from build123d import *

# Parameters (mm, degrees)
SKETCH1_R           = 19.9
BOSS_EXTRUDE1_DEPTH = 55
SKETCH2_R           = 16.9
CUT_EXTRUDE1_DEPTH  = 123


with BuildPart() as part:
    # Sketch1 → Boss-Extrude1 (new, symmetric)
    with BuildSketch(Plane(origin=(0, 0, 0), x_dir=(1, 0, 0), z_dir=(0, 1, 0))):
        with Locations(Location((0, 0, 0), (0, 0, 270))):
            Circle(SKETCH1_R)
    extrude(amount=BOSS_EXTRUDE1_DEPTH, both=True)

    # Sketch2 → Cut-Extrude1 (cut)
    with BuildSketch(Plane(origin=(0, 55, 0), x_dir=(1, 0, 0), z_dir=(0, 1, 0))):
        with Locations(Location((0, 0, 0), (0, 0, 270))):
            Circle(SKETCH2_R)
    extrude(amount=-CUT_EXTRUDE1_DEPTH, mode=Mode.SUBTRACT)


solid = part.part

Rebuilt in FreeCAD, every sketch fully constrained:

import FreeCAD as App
import Part
import Sketcher
Q = App.Units.Quantity

doc = App.newDocument("Part")
body = doc.addObject("PartDesign::Body", "Body")

# Sketch on XZ plane
sketch1 = doc.addObject("Sketcher::SketchObject", "Sketch")
body.addObject(sketch1)
sketch1.AttachmentSupport = (doc.XZ_Plane, [""])
sketch1.MapMode = "FlatFace"
sketch1.addGeometry(Part.Circle(App.Vector(0, 0, 0), App.Vector(0, 0, 1), 20), False)
sketch1.addConstraint([
    Sketcher.Constraint("Coincident", 0, 3, -1, 1),
    Sketcher.Constraint("Diameter", 0, Q("39.8 mm")),
])
pad1 = doc.addObject("PartDesign::Pad", "Pad")
body.addObject(pad1)
pad1.Profile = sketch1
pad1.Length = 110
pad1.Midplane = True

# Sketch on XZ plane
sketch2 = doc.addObject("Sketcher::SketchObject", "Sketch001")
body.addObject(sketch2)
sketch2.AttachmentSupport = (doc.XZ_Plane, [""])
sketch2.MapMode = "FlatFace"
sketch2.AttachmentOffset = App.Placement(App.Vector(0, 0, -55), App.Rotation())
sketch2.addGeometry(Part.Circle(App.Vector(0, 0, 0), App.Vector(0, 0, 1), 17), False)
sketch2.addConstraint([
    Sketcher.Constraint("Coincident", 0, 3, -1, 1),
    Sketcher.Constraint("Diameter", 0, Q("33.8 mm")),
])
pocket1 = doc.addObject("PartDesign::Pocket", "Pocket")
body.addObject(pocket1)
pocket1.Profile = sketch2
pocket1.Length = 123
pocket1.Reversed = True

doc.recompute()
